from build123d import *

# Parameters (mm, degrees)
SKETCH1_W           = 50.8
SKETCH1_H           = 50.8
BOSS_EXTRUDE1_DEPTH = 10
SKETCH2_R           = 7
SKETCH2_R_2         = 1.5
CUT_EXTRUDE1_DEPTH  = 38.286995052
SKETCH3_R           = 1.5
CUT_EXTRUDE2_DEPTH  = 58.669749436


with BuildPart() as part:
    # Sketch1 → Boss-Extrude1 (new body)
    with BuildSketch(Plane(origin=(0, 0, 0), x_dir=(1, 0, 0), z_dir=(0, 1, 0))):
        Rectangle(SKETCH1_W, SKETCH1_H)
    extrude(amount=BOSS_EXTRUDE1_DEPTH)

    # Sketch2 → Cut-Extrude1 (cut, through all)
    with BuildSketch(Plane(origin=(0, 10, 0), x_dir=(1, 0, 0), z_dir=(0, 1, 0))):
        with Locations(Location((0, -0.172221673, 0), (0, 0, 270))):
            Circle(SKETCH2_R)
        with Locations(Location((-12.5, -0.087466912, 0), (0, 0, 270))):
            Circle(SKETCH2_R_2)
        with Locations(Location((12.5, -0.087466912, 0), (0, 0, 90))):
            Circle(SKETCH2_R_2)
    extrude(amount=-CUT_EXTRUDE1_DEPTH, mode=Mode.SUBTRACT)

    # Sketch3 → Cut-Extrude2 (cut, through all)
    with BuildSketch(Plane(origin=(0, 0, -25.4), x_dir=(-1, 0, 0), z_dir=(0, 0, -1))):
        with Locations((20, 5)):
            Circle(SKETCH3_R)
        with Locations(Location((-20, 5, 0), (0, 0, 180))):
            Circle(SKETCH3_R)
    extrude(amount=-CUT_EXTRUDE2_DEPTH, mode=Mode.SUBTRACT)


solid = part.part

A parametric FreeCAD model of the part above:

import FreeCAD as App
import Part
import Sketcher
from FreeCAD import Vector
Q = App.Units.Quantity

doc = App.newDocument("Part")
body = doc.addObject("PartDesign::Body", "Body")

sketch1 = body.newObject("Sketcher::SketchObject", "Sketch")
sketch1.AttachmentSupport = (doc.getObject("XZ_Plane"), [""])
sketch1.MapMode = "FlatFace"
sketch1.addGeometry(Part.LineSegment(Vector(-25, -25, 0), Vector(-25, 25, 0)), False)
sketch1.addGeometry(Part.LineSegment(Vector(-25, 25, 0), Vector(25, 25, 0)), False)
sketch1.addGeometry(Part.LineSegment(Vector(25, 25, 0), Vector(25, -25, 0)), False)
sketch1.addGeometry(Part.LineSegment(Vector(25, -25, 0), Vector(-25, -25, 0)), False)
sketch1.addConstraint(Sketcher.Constraint("Coincident", 0, 2, 1, 1))
sketch1.addConstraint(Sketcher.Constraint("Coincident", 1, 2, 2, 1))
sketch1.addConstraint(Sketcher.Constraint("Coincident", 2, 2, 3, 1))
sketch1.addConstraint(Sketcher.Constraint("Coincident", 3, 2, 0, 1))
sketch1.addConstraint(Sketcher.Constraint("Vertical", 0))
sketch1.addConstraint(Sketcher.Constraint("Horizontal", 1))
sketch1.addConstraint(Sketcher.Constraint("Vertical", 2))
sketch1.addConstraint(Sketcher.Constraint("Horizontal", 3))
sketch1.addConstraint(Sketcher.Constraint("Symmetric", 0, 2, 2, 2, -1, 1))
sketch1.addConstraint(Sketcher.Constraint("Equal", 3, 0))
sketch1.addConstraint(Sketcher.Constraint("DistanceX", 1, 1, 1, 2, Q("50.8 mm")))
pad1 = body.newObject("PartDesign::Pad", "Pad")
pad1.Profile = sketch1
pad1.Length = 10
pad1.Reversed = True

sketch2 = body.newObject("Sketcher::SketchObject", "Sketch001")
sketch2.AttachmentSupport = (doc.getObject("XZ_Plane"), [""])
sketch2.MapMode = "FlatFace"
sketch2.AttachmentOffset = App.Placement(Vector(0, 0, -10), App.Rotation())
sketch2.addGeometry(Part.Circle(Vector(0, 0.2, 0), Vector(0, 0, 1), 7), False)
sketch2.addGeometry(Part.Circle(Vector(-12.5, 0.1, 0), Vector(0, 0, 1), 1.5), False)
sketch2.addGeometry(Part.Circle(Vector(12.5, 0.1, 0), Vector(0, 0, 1), 1.5), False)
sketch2.addConstraint(Sketcher.Constraint("Equal", 1, 2))
sketch2.addConstraint(Sketcher.Constraint("Symmetric", 1, 3, 2, 3, -2))
sketch2.addConstraint(Sketcher.Constraint("PointOnObject", 0, 3, -2))
sketch2.addConstraint(Sketcher.Constraint("Diameter", 0, Q("14 mm")))
sketch2.addConstraint(Sketcher.Constraint("Diameter", 1, Q("3 mm")))
sketch2.addConstraint(Sketcher.Constraint("DistanceX", 1, 3, 2, 3, Q("25 mm")))
sketch2.addConstraint(Sketcher.Constraint("DistanceY", -1, 1, 0, 3, Q("0.172222 mm")))
sketch2.addConstraint(Sketcher.Constraint("DistanceY", -1, 1, 1, 3, Q("0.087467 mm")))
pocket1 = body.newObject("PartDesign::Pocket", "Pocket")
pocket1.Profile = sketch2
pocket1.Type = "ThroughAll"
pocket1.Reversed = True

sketch3 = body.newObject("Sketcher::SketchObject", "Sketch002")
sketch3.AttachmentSupport = (doc.getObject("XY_Plane"), [""])
sketch3.MapMode = "FlatFace"
sketch3.AttachmentOffset = App.Placement(Vector(0, 0, -25.4), App.Rotation())
sketch3.addGeometry(Part.Circle(Vector(-20, 5, 0), Vector(0, 0, 1), 1.5), False)
sketch3.addGeometry(Part.Circle(Vector(20, 5, 0), Vector(0, 0, 1), 1.5), False)
sketch3.addConstraint(Sketcher.Constraint("Equal", 0, 1))
sketch3.addConstraint(Sketcher.Constraint("Symmetric", 0, 3, 1, 3, -2))
sketch3.addConstraint(Sketcher.Constraint("Diameter", 0, Q("3 mm")))
sketch3.addConstraint(Sketcher.Constraint("DistanceX", 0, 3, -1, 1, Q("20 mm")))
sketch3.addConstraint(Sketcher.Constraint("DistanceY", -1, 1, 0, 3, Q("5 mm")))
pocket2 = body.newObject("PartDesign::Pocket", "Pocket001")
pocket2.Profile = sketch3
pocket2.Type = "ThroughAll"
pocket2.Reversed = True

doc.recompute()
